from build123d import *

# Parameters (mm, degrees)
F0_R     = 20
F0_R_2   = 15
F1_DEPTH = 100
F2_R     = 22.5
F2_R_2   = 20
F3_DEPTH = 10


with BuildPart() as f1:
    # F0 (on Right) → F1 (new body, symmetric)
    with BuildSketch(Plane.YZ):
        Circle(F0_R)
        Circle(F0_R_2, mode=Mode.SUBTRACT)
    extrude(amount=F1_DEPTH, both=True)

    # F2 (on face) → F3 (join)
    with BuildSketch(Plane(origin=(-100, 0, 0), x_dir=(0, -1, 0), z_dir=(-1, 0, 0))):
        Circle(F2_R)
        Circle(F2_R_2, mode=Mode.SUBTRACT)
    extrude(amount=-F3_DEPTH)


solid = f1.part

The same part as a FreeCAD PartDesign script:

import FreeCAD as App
import Part
import Sketcher

doc = App.newDocument("Part")
body = doc.addObject("PartDesign::Body", "Body")

sketch1 = doc.addObject("Sketcher::SketchObject", "Sketch")
body.addObject(sketch1)
sketch1.AttachmentSupport = (doc.YZ_Plane, [""])
sketch1.MapMode = "FlatFace"
sketch1.addGeometry(Part.Circle(App.Vector(0, 0, 0), App.Vector(0, 0, 1), 20), False)
sketch1.addGeometry(Part.Circle(App.Vector(0, 0, 0), App.Vector(0, 0, 1), 15), False)
sketch1.addConstraint(Sketcher.Constraint("Coincident", 0, 3, -1, 1))
sketch1.addConstraint(Sketcher.Constraint("Coincident", 1, 3, -1, 1))
sketch1.addConstraint(Sketcher.Constraint("Diameter", 0, 40.0))
sketch1.addConstraint(Sketcher.Constraint("Diameter", 1, 30.0))
pad1 = doc.addObject("PartDesign::Pad", "Pad")
body.addObject(pad1)
pad1.Profile = sketch1
pad1.Length = 200
pad1.Midplane = True

sketch2 = doc.addObject("Sketcher::SketchObject", "Sketch001")
body.addObject(sketch2)
sketch2.AttachmentSupport = (doc.YZ_Plane, [""])
sketch2.MapMode = "FlatFace"
sketch2.AttachmentOffset = App.Placement(App.Vector(0, 0, -100), App.Rotation())
sketch2.addGeometry(Part.Circle(App.Vector(0, 0, 0), App.Vector(0, 0, 1), 22.5), False)
sketch2.addGeometry(Part.Circle(App.Vector(0, 0, 0), App.Vector(0, 0, 1), 20), False)
sketch2.addConstraint(Sketcher.Constraint("Coincident", 0, 3, -1, 1))
sketch2.addConstraint(Sketcher.Constraint("Coincident", 1, 3, -1, 1))
sketch2.addConstraint(Sketcher.Constraint("Diameter", 0, 45.0))
sketch2.addConstraint(Sketcher.Constraint("Diameter", 1, 40.0))
pad2 = doc.addObject("PartDesign::Pad", "Pad001")
body.addObject(pad2)
pad2.Profile = sketch2
pad2.Length = 10

doc.recompute()
